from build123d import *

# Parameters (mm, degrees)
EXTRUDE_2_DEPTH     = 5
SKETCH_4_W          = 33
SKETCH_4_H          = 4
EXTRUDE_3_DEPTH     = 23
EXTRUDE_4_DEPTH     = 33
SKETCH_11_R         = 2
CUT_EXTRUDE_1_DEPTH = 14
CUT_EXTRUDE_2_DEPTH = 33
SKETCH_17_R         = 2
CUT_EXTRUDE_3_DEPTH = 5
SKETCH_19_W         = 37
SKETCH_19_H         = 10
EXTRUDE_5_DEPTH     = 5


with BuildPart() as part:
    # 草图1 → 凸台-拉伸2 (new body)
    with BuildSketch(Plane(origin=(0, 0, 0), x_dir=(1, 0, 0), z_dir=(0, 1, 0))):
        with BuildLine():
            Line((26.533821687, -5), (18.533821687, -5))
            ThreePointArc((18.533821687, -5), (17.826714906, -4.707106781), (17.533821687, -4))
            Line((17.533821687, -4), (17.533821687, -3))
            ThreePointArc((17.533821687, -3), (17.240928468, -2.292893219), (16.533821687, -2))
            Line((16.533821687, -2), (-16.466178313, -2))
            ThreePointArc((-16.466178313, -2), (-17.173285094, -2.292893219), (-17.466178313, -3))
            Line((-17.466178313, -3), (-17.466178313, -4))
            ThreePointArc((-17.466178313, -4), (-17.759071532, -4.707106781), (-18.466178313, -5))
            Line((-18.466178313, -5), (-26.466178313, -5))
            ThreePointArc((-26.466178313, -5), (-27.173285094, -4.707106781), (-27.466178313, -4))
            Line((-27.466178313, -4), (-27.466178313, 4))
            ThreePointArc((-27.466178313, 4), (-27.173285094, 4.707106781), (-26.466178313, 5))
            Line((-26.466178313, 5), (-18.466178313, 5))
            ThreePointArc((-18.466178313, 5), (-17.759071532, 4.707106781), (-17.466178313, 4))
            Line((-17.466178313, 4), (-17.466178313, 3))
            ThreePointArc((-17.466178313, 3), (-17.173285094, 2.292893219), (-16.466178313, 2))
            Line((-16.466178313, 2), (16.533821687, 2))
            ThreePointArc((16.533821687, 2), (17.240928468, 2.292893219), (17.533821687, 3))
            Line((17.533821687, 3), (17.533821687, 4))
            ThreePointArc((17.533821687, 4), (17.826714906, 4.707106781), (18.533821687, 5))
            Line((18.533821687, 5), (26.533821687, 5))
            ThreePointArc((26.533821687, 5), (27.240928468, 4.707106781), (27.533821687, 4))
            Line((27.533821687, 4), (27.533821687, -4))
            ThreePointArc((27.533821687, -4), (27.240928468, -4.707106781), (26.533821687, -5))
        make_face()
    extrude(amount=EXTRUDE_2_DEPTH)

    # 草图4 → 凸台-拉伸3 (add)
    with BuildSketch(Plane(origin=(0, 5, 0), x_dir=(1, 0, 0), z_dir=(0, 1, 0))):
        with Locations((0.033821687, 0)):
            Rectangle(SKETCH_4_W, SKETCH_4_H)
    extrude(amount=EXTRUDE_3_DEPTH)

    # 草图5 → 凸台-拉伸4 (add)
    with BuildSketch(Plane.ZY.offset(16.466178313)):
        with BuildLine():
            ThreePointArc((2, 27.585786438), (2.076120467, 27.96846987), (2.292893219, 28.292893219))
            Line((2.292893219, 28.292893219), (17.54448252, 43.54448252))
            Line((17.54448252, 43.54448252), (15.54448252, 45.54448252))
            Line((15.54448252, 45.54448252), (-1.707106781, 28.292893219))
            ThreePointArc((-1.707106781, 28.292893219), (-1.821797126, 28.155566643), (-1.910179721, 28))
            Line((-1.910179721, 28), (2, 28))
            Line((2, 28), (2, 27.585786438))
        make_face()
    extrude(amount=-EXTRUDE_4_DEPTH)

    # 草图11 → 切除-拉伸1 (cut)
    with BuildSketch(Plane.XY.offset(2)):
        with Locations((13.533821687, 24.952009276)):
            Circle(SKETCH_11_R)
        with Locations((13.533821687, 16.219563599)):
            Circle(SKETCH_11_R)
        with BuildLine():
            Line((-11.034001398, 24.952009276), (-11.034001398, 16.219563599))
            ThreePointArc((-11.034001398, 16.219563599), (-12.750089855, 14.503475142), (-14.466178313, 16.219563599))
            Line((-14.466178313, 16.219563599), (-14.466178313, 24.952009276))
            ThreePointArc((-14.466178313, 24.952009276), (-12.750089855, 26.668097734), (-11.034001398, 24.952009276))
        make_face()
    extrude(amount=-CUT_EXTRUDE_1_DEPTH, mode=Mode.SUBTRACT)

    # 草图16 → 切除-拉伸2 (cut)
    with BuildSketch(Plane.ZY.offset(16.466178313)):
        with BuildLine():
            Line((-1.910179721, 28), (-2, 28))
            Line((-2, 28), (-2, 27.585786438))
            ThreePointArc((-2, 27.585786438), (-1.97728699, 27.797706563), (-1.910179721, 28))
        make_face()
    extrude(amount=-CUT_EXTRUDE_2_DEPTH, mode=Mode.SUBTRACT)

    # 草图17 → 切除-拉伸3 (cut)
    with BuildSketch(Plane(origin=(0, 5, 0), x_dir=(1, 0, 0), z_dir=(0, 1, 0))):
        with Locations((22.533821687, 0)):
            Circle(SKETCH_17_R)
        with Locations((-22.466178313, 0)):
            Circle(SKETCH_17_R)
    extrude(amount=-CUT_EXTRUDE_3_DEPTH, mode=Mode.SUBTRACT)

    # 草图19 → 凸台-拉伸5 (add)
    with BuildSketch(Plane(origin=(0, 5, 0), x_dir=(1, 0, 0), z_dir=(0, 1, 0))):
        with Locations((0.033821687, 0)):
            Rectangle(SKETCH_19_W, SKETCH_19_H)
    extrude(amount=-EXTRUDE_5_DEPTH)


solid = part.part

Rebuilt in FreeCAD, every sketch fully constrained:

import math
import FreeCAD as App
import Part
import Sketcher

V = App.Vector
Q = App.Units.Quantity


def add_polygon(sketch, points):
    """Adds a closed chain of lines whose ends are joined by coincident constraints."""
    first, n = sketch.GeometryCount, len(points)
    for a, b in zip(points, points[1:] + points[:1]):
        sketch.addGeometry(Part.LineSegment(App.Vector(*a, 0), App.Vector(*b, 0)), False)
    for i in range(n):
        sketch.addConstraint(Sketcher.Constraint("Coincident", first + i, 2, first + (i + 1) % n, 1))

doc = App.newDocument("Part")
body = doc.addObject("PartDesign::Body", "Body")

# Sketch on XZ plane
sketch1 = doc.addObject("Sketcher::SketchObject", "Sketch")
body.addObject(sketch1)
sketch1.AttachmentSupport = (doc.XZ_Plane, [""])
sketch1.MapMode = "FlatFace"
sketch1.addGeometry([
    Part.LineSegment(V(18.5, 5, 0), V(26.5, 5, 0)),  # 0
    Part.ArcOfCircle(Part.Circle(V(26.5, 4, 0), V(0, 0, 1), 1), math.radians(0), math.radians(90)),  # 1
    Part.LineSegment(V(27.5, 4, 0), V(27.5, -4, 0)),  # 2
    Part.ArcOfCircle(Part.Circle(V(26.5, -4, 0), V(0, 0, 1), 1), math.radians(-90), math.radians(0)),  # 3
    Part.LineSegment(V(26.5, -5, 0), V(18.5, -5, 0)),  # 4
    Part.ArcOfCircle(Part.Circle(V(18.5, -4, 0), V(0, 0, 1), 1), math.radians(-180), math.radians(-90)),  # 5
    Part.LineSegment(V(17.5, -4, 0), V(17.5, -3, 0)),  # 6
    Part.ArcOfCircle(Part.Circle(V(16.5, -3, 0), V(0, 0, 1), 1), math.radians(0), math.radians(90)),  # 7
    Part.LineSegment(V(16.5, -2, 0), V(-16.5, -2, 0)),  # 8
    Part.ArcOfCircle(Part.Circle(V(-16.5, -3, 0), V(0, 0, 1), 1), math.radians(90), math.radians(180)),  # 9
    Part.LineSegment(V(-17.5, -3, 0), V(-17.5, -4, 0)),  # 10
    Part.ArcOfCircle(Part.Circle(V(-18.5, -4, 0), V(0, 0, 1), 1), math.radians(-90), math.radians(0)),  # 11
    Part.LineSegment(V(-18.5, -5, 0), V(-26.5, -5, 0)),  # 12
    Part.ArcOfCircle(Part.Circle(V(-26.5, -4, 0), V(0, 0, 1), 1), math.radians(-180), math.radians(-90)),  # 13
    Part.LineSegment(V(-27.5, -4, 0), V(-27.5, 4, 0)),  # 14
    Part.ArcOfCircle(Part.Circle(V(-26.5, 4, 0), V(0, 0, 1), 1), math.radians(90), math.radians(180)),  # 15
    Part.LineSegment(V(-26.5, 5, 0), V(-18.5, 5, 0)),  # 16
    Part.ArcOfCircle(Part.Circle(V(-18.5, 4, 0), V(0, 0, 1), 1), math.radians(0), math.radians(90)),  # 17
    Part.LineSegment(V(-17.5, 4, 0), V(-17.5, 3, 0)),  # 18
    Part.ArcOfCircle(Part.Circle(V(-16.5, 3, 0), V(0, 0, 1), 1), math.radians(-180), math.radians(-90)),  # 19
    Part.LineSegment(V(-16.5, 2, 0), V(16.5, 2, 0)),  # 20
    Part.ArcOfCircle(Part.Circle(V(16.5, 3, 0), V(0, 0, 1), 1), math.radians(-90), math.radians(0)),  # 21
    Part.LineSegment(V(17.5, 3, 0), V(17.5, 4, 0)),  # 22
    Part.ArcOfCircle(Part.Circle(V(18.5, 4, 0), V(0, 0, 1), 1), math.radians(90), math.radians(180)),  # 23
], False)
sketch1.addConstraint([
    Sketcher.Constraint("Tangent", 0, 2, 1, 2),
    Sketcher.Constraint("Tangent", 1, 1, 2, 1),
    Sketcher.Constraint("Tangent", 2, 2, 3, 2),
    Sketcher.Constraint("Tangent", 3, 1, 4, 1),
    Sketcher.Constraint("Tangent", 4, 2, 5, 2),
    Sketcher.Constraint("Tangent", 5, 1, 6, 1),
    Sketcher.Constraint("Tangent", 6, 2, 7, 1),
    Sketcher.Constraint("Tangent", 7, 2, 8, 1),
    Sketcher.Constraint("Tangent", 8, 2, 9, 1),
    Sketcher.Constraint("Tangent", 9, 2, 10, 1),
    Sketcher.Constraint("Tangent", 10, 2, 11, 2),
    Sketcher.Constraint("Tangent", 11, 1, 12, 1),
    Sketcher.Constraint("Tangent", 12, 2, 13, 2),
    Sketcher.Constraint("Tangent", 13, 1, 14, 1),
    Sketcher.Constraint("Tangent", 14, 2, 15, 2),
    Sketcher.Constraint("Tangent", 15, 1, 16, 1),
    Sketcher.Constraint("Tangent", 16, 2, 17, 2),
    Sketcher.Constraint("Tangent", 17, 1, 18, 1),
    Sketcher.Constraint("Tangent", 18, 2, 19, 1),
    Sketcher.Constraint("Tangent", 19, 2, 20, 1),
    Sketcher.Constraint("Tangent", 20, 2, 21, 1),
    Sketcher.Constraint("Tangent", 21, 2, 22, 1),
    Sketcher.Constraint("Tangent", 22, 2, 23, 2),
    Sketcher.Constraint("Tangent", 23, 1, 0, 1),
    Sketcher.Constraint("Horizontal", 0),
    Sketcher.Constraint("Vertical", 2),
    Sketcher.Constraint("Horizontal", 4),
    Sketcher.Constraint("Vertical", 6),
    Sketcher.Constraint("Horizontal", 8),
    Sketcher.Constraint("Vertical", 10),
    Sketcher.Constraint("Horizontal", 12),
    Sketcher.Constraint("Vertical", 14),
    Sketcher.Constraint("Horizontal", 16),
    Sketcher.Constraint("Vertical", 18),
    Sketcher.Constraint("Horizontal", 20),
    Sketcher.Constraint("Vertical", 22),
    Sketcher.Constraint("Equal", 1, 3),
    Sketcher.Constraint("Equal", 3, 5),
    Sketcher.Constraint("Equal", 5, 7),
    Sketcher.Constraint("Equal", 7, 9),
    Sketcher.Constraint("Equal", 9, 11),
    Sketcher.Constraint("Equal", 11, 13),
    Sketcher.Constraint("Equal", 13, 15),
    Sketcher.Constraint("Equal", 15, 17),
    Sketcher.Constraint("Equal", 17, 19),
    Sketcher.Constraint("Equal", 19, 21),
    Sketcher.Constraint("Equal", 21, 23),
    Sketcher.Constraint("Symmetric", 11, 3, 17, 3, -1),
    Sketcher.Constraint("Symmetric", 7, 3, 21, 3, -1),
    Sketcher.Constraint("Horizontal", 5, 3, 11, 3),
    Sketcher.Constraint("Horizontal", 1, 3, 15, 3),
    Sketcher.Constraint("Equal", 4, 12),
    Sketcher.Constraint("Equal", 16, 2),
    Sketcher.Constraint("Radius", 1, 1.0),
    Sketcher.Constraint("DistanceX", 0, 1, 0, 2, 8.0),
    Sketcher.Constraint("DistanceX", 8, 2, 8, 1, 33.0),
    Sketcher.Constraint("DistanceY", 6, 1, 6, 2, 1.0),
    Sketcher.Constraint("DistanceX", -1, 1, 1, 3, 26.533822),
])
pad1 = doc.addObject("PartDesign::Pad", "Pad")
body.addObject(pad1)
pad1.Profile = sketch1
pad1.Length = 5
pad1.Reversed = True

# Sketch on XZ plane
sketch2 = doc.addObject("Sketcher::SketchObject", "Sketch001")
body.addObject(sketch2)
sketch2.AttachmentSupport = (doc.XZ_Plane, [""])
sketch2.MapMode = "FlatFace"
sketch2.AttachmentOffset = App.Placement(V(0, 0, -5), App.Rotation())
add_polygon(sketch2, [(-16.5, -2), (-16.5, 2), (16.5, 2), (16.5, -2)])  # lines 0-3
sketch2.addConstraint([
    Sketcher.Constraint("Vertical", 0),
    Sketcher.Constraint("Horizontal", 1),
    Sketcher.Constraint("Vertical", 2),
    Sketcher.Constraint("Horizontal", 3),
    Sketcher.Constraint("DistanceX", 1, 1, 1, 2, 33.0),
    Sketcher.Constraint("DistanceY", 0, 1, 0, 2, 4.0),
    Sketcher.Constraint("DistanceY", -1, 1, 0, 2, 2.0),
    Sketcher.Constraint("DistanceX", 0, 2, -1, 1, 16.466178),
])
pad2 = doc.addObject("PartDesign::Pad", "Pad001")
body.addObject(pad2)
pad2.Profile = sketch2
pad2.Length = 23
pad2.Reversed = True

# Sketch on YZ plane
sketch3 = doc.addObject("Sketcher::SketchObject", "Sketch002")
body.addObject(sketch3)
sketch3.AttachmentSupport = (doc.YZ_Plane, [""])
sketch3.MapMode = "FlatFace"
sketch3.AttachmentOffset = App.Placement(V(0, 0, -16.466178), App.Rotation())
sketch3.addGeometry([
    Part.ArcOfCircle(Part.Circle(V(27.59, 3, 0), V(0, 0, 1), 1), math.radians(-90), math.radians(-45)),  # 0
    Part.LineSegment(V(28.29, 2.29, 0), V(43.54, 17.54, 0)),  # 1
    Part.LineSegment(V(43.54, 17.54, 0), V(45.54, 15.54, 0)),  # 2
    Part.LineSegment(V(45.54, 15.54, 0), V(28.29, -1.71, 0)),  # 3
    Part.ArcOfCircle(Part.Circle(V(27.59, -1, 0), V(0, 0, 1), 1), math.radians(-66), math.radians(-45)),  # 4
    Part.LineSegment(V(28, -1.91, 0), V(28, 2, 0)),  # 5
    Part.LineSegment(V(28, 2, 0), V(27.59, 2, 0)),  # 6
], False)
sketch3.addConstraint([
    Sketcher.Constraint("Tangent", 0, 2, 1, 1),
    Sketcher.Constraint("Coincident", 1, 2, 2, 1),
    Sketcher.Constraint("Coincident", 2, 2, 3, 1),
    Sketcher.Constraint("Tangent", 3, 2, 4, 2),
    Sketcher.Constraint("Coincident", 4, 1, 5, 1),
    Sketcher.Constraint("Coincident", 5, 2, 6, 1),
    Sketcher.Constraint("Tangent", 6, 2, 0, 1),
    Sketcher.Constraint("Vertical", 5),
    Sketcher.Constraint("Horizontal", 6),
    Sketcher.Constraint("Equal", 0, 4),
    Sketcher.Constraint("Perpendicular", 1, 2),
    Sketcher.Constraint("Perpendicular", 2, 3),
    Sketcher.Constraint("Vertical", 0, 3, 4, 3),
    Sketcher.Constraint("Radius", 0, 1.0),
    Sketcher.Constraint("Angle", 1, Q("45 deg")),
    Sketcher.Constraint("DistanceY", -1, 1, 0, 3, 3.0),
    Sketcher.Constraint("DistanceY", 4, 3, -1, 1, 1.0),
    Sketcher.Constraint("DistanceX", -1, 1, 4, 1, 28.0),
    Sketcher.Constraint("DistanceY", 5, 1, 5, 2, 3.91018),
    Sketcher.Constraint("Distance", 3, 24.397432),
])
pad3 = doc.addObject("PartDesign::Pad", "Pad002")
body.addObject(pad3)
pad3.Profile = sketch3
pad3.Length = 33

# Sketch on XY plane
sketch4 = doc.addObject("Sketcher::SketchObject", "Sketch003")
body.addObject(sketch4)
sketch4.AttachmentSupport = (doc.XY_Plane, [""])
sketch4.MapMode = "FlatFace"
sketch4.AttachmentOffset = App.Placement(V(0, 0, 2), App.Rotation())
sketch4.addGeometry([
    Part.Circle(V(13.5, 25, 0), V(0, 0, 1), 2),  # 0
    Part.Circle(V(13.5, 16.2, 0), V(0, 0, 1), 2),  # 1
    Part.LineSegment(V(-11, 16.2, 0), V(-11, 25, 0)),  # 2
    Part.ArcOfCircle(Part.Circle(V(-12.8, 25, 0), V(0, 0, 1), 1.7), math.radians(0), math.radians(180)),  # 3
    Part.LineSegment(V(-14.5, 25, 0), V(-14.5, 16.2, 0)),  # 4
    Part.ArcOfCircle(Part.Circle(V(-12.8, 16.2, 0), V(0, 0, 1), 1.7), math.radians(180), math.radians(360)),  # 5
], False)
sketch4.addConstraint([
    Sketcher.Constraint("Tangent", 2, 2, 3, 1),
    Sketcher.Constraint("Tangent", 3, 2, 4, 1),
    Sketcher.Constraint("Tangent", 4, 2, 5, 1),
    Sketcher.Constraint("Tangent", 5, 2, 2, 1),
    Sketcher.Constraint("Vertical", 2),
    Sketcher.Constraint("Vertical", 4),
    Sketcher.Constraint("Equal", 0, 1),
    Sketcher.Constraint("Horizontal", 0, 3, 3, 3),
    Sketcher.Constraint("Horizontal", 1, 3, 5, 3),
    Sketcher.Constraint("Vertical", 0, 3, 1, 3),
    Sketcher.Constraint("Diameter", 0, 4.0),
    Sketcher.Constraint("DistanceX", 3, 2, 0, 3, 28.0),
    Sketcher.Constraint("Radius", 3, 1.716088),
    Sketcher.Constraint("DistanceX", 2, 2, -1, 1, 11.034001),
    Sketcher.Constraint("DistanceY", 2, 1, 2, 2, 8.732446),
    Sketcher.Constraint("DistanceY", -1, 1, 0, 3, 24.952009),
])
pocket1 = doc.addObject("PartDesign::Pocket", "Pocket")
body.addObject(pocket1)
pocket1.Profile = sketch4
pocket1.Length = 14

# Sketch on YZ plane
sketch5 = doc.addObject("Sketcher::SketchObject", "Sketch004")
body.addObject(sketch5)
sketch5.AttachmentSupport = (doc.YZ_Plane, [""])
sketch5.MapMode = "FlatFace"
sketch5.AttachmentOffset = App.Placement(V(0, 0, -16.466178), App.Rotation())
sketch5.addGeometry([
    Part.LineSegment(V(28, -1.91, 0), V(28, -2, 0)),
    Part.LineSegment(V(28, -2, 0), V(27.59, -2, 0)),
    Part.ArcOfCircle(Part.Circle(V(27.59, -1, 0), V(0, 0, 1), 1), math.radians(-90), math.radians(-66)),
], False)
sketch5.addConstraint([
    Sketcher.Constraint("Coincident", 0, 2, 1, 1),
    Sketcher.Constraint("Tangent", 1, 2, 2, 1),
    Sketcher.Constraint("Coincident", 2, 2, 0, 1),
    Sketcher.Constraint("Vertical", 0),
    Sketcher.Constraint("Horizontal", 1),
    Sketcher.Constraint("Radius", 2, 1.0),
    Sketcher.Constraint("DistanceY", 2, 3, -1, 1, 1.0),
    Sketcher.Constraint("DistanceX", -1, 1, 0, 2, 28.0),
    Sketcher.Constraint("DistanceY", 0, 2, 0, 1, 0.08982),
])
pocket2 = doc.addObject("PartDesign::Pocket", "Pocket001")
body.addObject(pocket2)
pocket2.Profile = sketch5
pocket2.Length = 33
pocket2.Reversed = True

# Sketch on XZ plane
sketch6 = doc.addObject("Sketcher::SketchObject", "Sketch005")
body.addObject(sketch6)
sketch6.AttachmentSupport = (doc.XZ_Plane, [""])
sketch6.MapMode = "FlatFace"
sketch6.AttachmentOffset = App.Placement(V(0, 0, -5), App.Rotation())
sketch6.addGeometry([
    Part.Circle(V(22.5, 0, 0), V(0, 0, 1), 2),
    Part.Circle(V(-22.5, 0, 0), V(0, 0, 1), 2),
], False)
sketch6.addConstraint([
    Sketcher.Constraint("Equal", 0, 1),
    Sketcher.Constraint("PointOnObject", 0, 3, -1),
    Sketcher.Constraint("PointOnObject", 1, 3, -1),
    Sketcher.Constraint("Diameter", 0, 4.0),
    Sketcher.Constraint("DistanceX", 1, 3, 0, 3, 45.0),
    Sketcher.Constraint("DistanceX", -1, 1, 0, 3, 22.533822),
])
pocket3 = doc.addObject("PartDesign::Pocket", "Pocket002")
body.addObject(pocket3)
pocket3.Profile = sketch6
pocket3.Length = 5
pocket3.Reversed = True

# Sketch on XZ plane
sketch7 = doc.addObject("Sketcher::SketchObject", "Sketch006")
body.addObject(sketch7)
sketch7.AttachmentSupport = (doc.XZ_Plane, [""])
sketch7.MapMode = "FlatFace"
sketch7.AttachmentOffset = App.Placement(V(0, 0, -5), App.Rotation())
add_polygon(sketch7, [(-18, -5), (-18, 5), (19, 5), (19, -5)])  # lines 0-3
sketch7.addConstraint([
    Sketcher.Constraint("Vertical", 0),
    Sketcher.Constraint("Horizontal", 1),
    Sketcher.Constraint("Vertical", 2),
    Sketcher.Constraint("Horizontal", 3),
    Sketcher.Constraint("DistanceX", 1, 1, 1, 2, 37.0),
    Sketcher.Constraint("DistanceY", 0, 1, 0, 2, 10.0),
    Sketcher.Constraint("DistanceY", -1, 1, 0, 2, 5.0),
    Sketcher.Constraint("DistanceX", 0, 2, -1, 1, 18.466178),
])
pad4 = doc.addObject("PartDesign::Pad", "Pad003")
body.addObject(pad4)
pad4.Profile = sketch7
pad4.Length = 5

doc.recompute()
